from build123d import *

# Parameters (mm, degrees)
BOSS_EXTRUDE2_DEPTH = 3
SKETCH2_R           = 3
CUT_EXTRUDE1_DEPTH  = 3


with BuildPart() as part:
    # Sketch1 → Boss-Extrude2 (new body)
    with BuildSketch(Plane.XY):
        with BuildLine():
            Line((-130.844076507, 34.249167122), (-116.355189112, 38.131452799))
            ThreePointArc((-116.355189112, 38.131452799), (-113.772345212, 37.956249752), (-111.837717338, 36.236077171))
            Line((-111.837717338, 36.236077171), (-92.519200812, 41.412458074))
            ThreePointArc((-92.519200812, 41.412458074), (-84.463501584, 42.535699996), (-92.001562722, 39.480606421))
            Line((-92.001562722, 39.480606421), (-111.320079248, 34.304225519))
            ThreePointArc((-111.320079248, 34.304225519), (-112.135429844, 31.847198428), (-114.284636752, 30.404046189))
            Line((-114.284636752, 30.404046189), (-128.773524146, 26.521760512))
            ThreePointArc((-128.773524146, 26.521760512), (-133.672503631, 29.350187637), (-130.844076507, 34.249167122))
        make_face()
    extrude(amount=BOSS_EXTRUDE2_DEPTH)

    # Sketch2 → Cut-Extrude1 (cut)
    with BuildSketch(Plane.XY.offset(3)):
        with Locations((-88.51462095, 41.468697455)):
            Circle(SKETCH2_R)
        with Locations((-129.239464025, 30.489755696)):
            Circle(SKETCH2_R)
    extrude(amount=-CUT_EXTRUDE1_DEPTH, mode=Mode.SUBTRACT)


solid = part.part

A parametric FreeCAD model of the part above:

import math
import FreeCAD as App
import Part
import Sketcher
from FreeCAD import Vector
Q = App.Units.Quantity

doc = App.newDocument("Part")
body = doc.addObject("PartDesign::Body", "Body")

# Sketch on XY plane
sketch1 = doc.addObject("Sketcher::SketchObject", "Sketch")
body.addObject(sketch1)
sketch1.AttachmentSupport = (doc.XY_Plane, [""])
sketch1.MapMode = "FlatFace"
sketch1.addGeometry([
    Part.LineSegment(Vector(-116.4, 38.1, 0), Vector(-130.8, 34.2, 0)),  # 0
    Part.ArcOfCircle(Part.Circle(Vector(-129.8, 30.4, 0), Vector(0, 0, 1), 4), math.radians(105), math.radians(285)),  # 1
    Part.LineSegment(Vector(-128.8, 26.5, 0), Vector(-114.3, 30.4, 0)),  # 2
    Part.ArcOfCircle(Part.Circle(Vector(-115.3, 34.3, 0), Vector(0, 0, 1), 4), math.radians(-75), math.radians(1)),  # 3
    Part.LineSegment(Vector(-111.3, 34.3, 0), Vector(-92, 39.5, 0)),  # 4
    Part.ArcOfCircle(Part.Circle(Vector(-88.4, 41.5, 0), Vector(0, 0, 1), 4.1), math.radians(-151), math.radians(181)),  # 5
    Part.LineSegment(Vector(-92.5, 41.4, 0), Vector(-111.8, 36.2, 0)),  # 6
    Part.ArcOfCircle(Part.Circle(Vector(-115.3, 34.3, 0), Vector(0, 0, 1), 4), math.radians(29), math.radians(105)),  # 7
], False)
sketch1.addConstraint([
    Sketcher.Constraint("Tangent", 0, 2, 1, 1),
    Sketcher.Constraint("Tangent", 1, 2, 2, 1),
    Sketcher.Constraint("Tangent", 2, 2, 3, 1),
    Sketcher.Constraint("Coincident", 3, 2, 4, 1),
    Sketcher.Constraint("Coincident", 4, 2, 5, 1),
    Sketcher.Constraint("Coincident", 5, 2, 6, 1),
    Sketcher.Constraint("Coincident", 6, 2, 7, 1),
    Sketcher.Constraint("Tangent", 7, 2, 0, 1),
    Sketcher.Constraint("Coincident", 7, 3, 3, 3),
    Sketcher.Constraint("Equal", 1, 3),
    Sketcher.Constraint("Equal", 3, 7),
    Sketcher.Constraint("Parallel", 2, 4),
    Sketcher.Constraint("Parallel", 4, 6),
    Sketcher.Constraint("Equal", 4, 6),
    Sketcher.Constraint("Radius", 1, 4.0),
    Sketcher.Constraint("Angle", 0, Q("-165 deg")),
    Sketcher.Constraint("Distance", 0, 15.0),
    Sketcher.Constraint("Distance", 4, 20.0),
    Sketcher.Constraint("Radius", 5, 4.097905),
    Sketcher.Constraint("DistanceX", 1, 3, -1, 1, 129.8088),
    Sketcher.Constraint("DistanceX", 5, 2, -1, 1, 92.519201),
    Sketcher.Constraint("DistanceY", -1, 1, 3, 3, 34.267749),
    Sketcher.Constraint("DistanceX", 3, 2, -1, 1, 111.320079),
])
pad1 = doc.addObject("PartDesign::Pad", "Pad")
body.addObject(pad1)
pad1.Profile = sketch1
pad1.Length = 3

# Sketch on XY plane
sketch2 = doc.addObject("Sketcher::SketchObject", "Sketch001")
body.addObject(sketch2)
sketch2.AttachmentSupport = (doc.XY_Plane, [""])
sketch2.MapMode = "FlatFace"
sketch2.AttachmentOffset = App.Placement(Vector(0, 0, 3), App.Rotation())
sketch2.addGeometry([
    Part.Circle(Vector(-88.5, 41.5, 0), Vector(0, 0, 1), 3),
    Part.Circle(Vector(-129.2, 30.5, 0), Vector(0, 0, 1), 3),
], False)
sketch2.addConstraint([
    Sketcher.Constraint("Equal", 0, 1),
    Sketcher.Constraint("Diameter", 0, 6.0),
    Sketcher.Constraint("DistanceX", 0, 3, -1, 1, 88.514621),
    Sketcher.Constraint("DistanceY", 1, 3, 0, 3, 10.978942),
    Sketcher.Constraint("DistanceY", -1, 1, 0, 3, 41.468697),
    Sketcher.Constraint("DistanceX", 1, 3, -1, 1, 129.239464),
])
pocket1 = doc.addObject("PartDesign::Pocket", "Pocket")
body.addObject(pocket1)
pocket1.Profile = sketch2
pocket1.Length = 3

doc.recompute()
